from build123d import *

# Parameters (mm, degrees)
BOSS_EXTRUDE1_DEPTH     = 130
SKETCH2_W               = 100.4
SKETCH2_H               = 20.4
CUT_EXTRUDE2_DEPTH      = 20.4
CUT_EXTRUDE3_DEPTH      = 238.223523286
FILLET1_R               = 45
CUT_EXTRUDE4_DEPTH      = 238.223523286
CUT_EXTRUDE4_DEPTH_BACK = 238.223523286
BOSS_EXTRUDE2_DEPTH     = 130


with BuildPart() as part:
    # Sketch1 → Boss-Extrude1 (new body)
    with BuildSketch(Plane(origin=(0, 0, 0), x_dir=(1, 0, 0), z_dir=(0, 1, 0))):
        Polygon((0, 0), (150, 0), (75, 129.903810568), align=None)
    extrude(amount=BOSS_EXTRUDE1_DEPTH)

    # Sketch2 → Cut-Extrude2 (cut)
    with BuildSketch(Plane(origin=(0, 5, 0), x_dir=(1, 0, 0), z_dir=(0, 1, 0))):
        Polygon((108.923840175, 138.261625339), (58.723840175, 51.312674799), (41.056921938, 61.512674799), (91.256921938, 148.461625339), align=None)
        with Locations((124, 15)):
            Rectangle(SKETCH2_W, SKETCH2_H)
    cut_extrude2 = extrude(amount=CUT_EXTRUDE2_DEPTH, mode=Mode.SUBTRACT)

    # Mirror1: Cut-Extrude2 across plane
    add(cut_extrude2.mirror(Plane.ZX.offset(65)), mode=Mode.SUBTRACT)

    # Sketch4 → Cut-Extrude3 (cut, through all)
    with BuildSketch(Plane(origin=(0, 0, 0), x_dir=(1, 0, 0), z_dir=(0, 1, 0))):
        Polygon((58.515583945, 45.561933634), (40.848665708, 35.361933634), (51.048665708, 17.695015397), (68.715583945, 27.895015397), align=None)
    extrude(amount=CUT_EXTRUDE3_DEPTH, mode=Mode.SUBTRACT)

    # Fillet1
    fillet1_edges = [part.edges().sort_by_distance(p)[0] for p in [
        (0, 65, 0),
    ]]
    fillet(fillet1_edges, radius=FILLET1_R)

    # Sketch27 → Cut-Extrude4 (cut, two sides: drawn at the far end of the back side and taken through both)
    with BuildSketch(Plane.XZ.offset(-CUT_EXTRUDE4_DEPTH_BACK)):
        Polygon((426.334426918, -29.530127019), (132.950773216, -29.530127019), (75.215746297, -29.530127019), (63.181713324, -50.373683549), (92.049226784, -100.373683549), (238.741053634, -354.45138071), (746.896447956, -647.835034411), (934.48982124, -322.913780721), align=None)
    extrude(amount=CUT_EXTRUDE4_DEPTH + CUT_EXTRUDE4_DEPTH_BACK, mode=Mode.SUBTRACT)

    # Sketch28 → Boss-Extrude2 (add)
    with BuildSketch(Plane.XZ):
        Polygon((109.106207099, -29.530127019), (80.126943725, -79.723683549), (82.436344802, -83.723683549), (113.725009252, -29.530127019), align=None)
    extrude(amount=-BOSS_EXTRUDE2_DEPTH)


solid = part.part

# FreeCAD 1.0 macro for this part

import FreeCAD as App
import Part
import Sketcher
Q = App.Units.Quantity


def edges_at(feature, points):
    """Names of the edges that pass closest to the given points."""
    edges = feature.Shape.Edges
    near = lambda p: min(range(len(edges)), key=lambda i: edges[i].distToShape(Part.Vertex(*p))[0])
    return sorted({f"Edge{near(p) + 1}" for p in points})


def add_polygon(sketch, points):
    """Adds a closed chain of lines whose ends are joined by coincident constraints."""
    first, n = sketch.GeometryCount, len(points)
    for a, b in zip(points, points[1:] + points[:1]):
        sketch.addGeometry(Part.LineSegment(App.Vector(*a, 0), App.Vector(*b, 0)), False)
    for i in range(n):
        sketch.addConstraint(Sketcher.Constraint("Coincident", first + i, 2, first + (i + 1) % n, 1))

doc = App.newDocument("Part")
body = doc.addObject("PartDesign::Body", "Body")

# Sketch on XZ plane
sketch1 = body.newObject("Sketcher::SketchObject", "Sketch")
sketch1.AttachmentSupport = (doc.getObject("XZ_Plane"), [""])
sketch1.MapMode = "FlatFace"
add_polygon(sketch1, [(0, 0), (150, 0), (75, -130)])  # lines 0-2
sketch1.addConstraint([
    Sketcher.Constraint("Horizontal", 0),
    Sketcher.Constraint("Coincident", 2, 2, -1, 1),
    Sketcher.Constraint("Equal", 1, 2),
    Sketcher.Constraint("DistanceX", 0, 1, 0, 2, 150.0),
    Sketcher.Constraint("Angle", 1, Q("-120 deg")),
])
pad1 = body.newObject("PartDesign::Pad", "Pad")
pad1.Profile = sketch1
pad1.Length = 130
pad1.Reversed = True

# Sketch on XZ plane
sketch2 = body.newObject("Sketcher::SketchObject", "Sketch001")
sketch2.AttachmentSupport = (doc.getObject("XZ_Plane"), [""])
sketch2.MapMode = "FlatFace"
sketch2.AttachmentOffset = App.Placement(App.Vector(0, 0, -5), App.Rotation())
add_polygon(sketch2, [(59, -51), (109, -138), (91, -148), (41, -62)])  # lines 0-3
add_polygon(sketch2, [(74, -25), (74, -5), (174, -5), (174, -25)])  # lines 4-7
sketch2.addConstraint([
    Sketcher.Constraint("Vertical", 4),
    Sketcher.Constraint("Horizontal", 5),
    Sketcher.Constraint("Vertical", 6),
    Sketcher.Constraint("Horizontal", 7),
    Sketcher.Constraint("Perpendicular", 0, 1),
    Sketcher.Constraint("Perpendicular", 1, 2),
    Sketcher.Constraint("Perpendicular", 2, 3),
    Sketcher.Constraint("Angle", 0, Q("-60 deg")),
    Sketcher.Constraint("DistanceX", 5, 1, 5, 2, 100.4),
    Sketcher.Constraint("DistanceY", 4, 1, 4, 2, 20.4),
    Sketcher.Constraint("Distance", 0, 100.4),
    Sketcher.Constraint("Distance", 1, 20.4),
    Sketcher.Constraint("DistanceX", -1, 1, 4, 2, 73.8),
    Sketcher.Constraint("DistanceY", 4, 2, -1, 1, 4.8),
    Sketcher.Constraint("DistanceX", -1, 1, 0, 2, 108.92384),
    Sketcher.Constraint("DistanceY", 0, 2, -1, 1, 138.261625),
])
pocket1 = body.newObject("PartDesign::Pocket", "Pocket")
pocket1.Profile = sketch2
pocket1.Length = 20.4
doc.recompute()

datumplane = body.newObject("PartDesign::Plane", "DatumPlane")
datumplane.AttachmentSupport = (doc.getObject("XZ_Plane"), [""])
datumplane.MapMode = "FlatFace"
datumplane.AttachmentOffset = App.Placement(App.Vector(0, 0, -65), App.Rotation())
mirrored = body.newObject("PartDesign::Mirrored", "Mirrored")
mirrored.Originals = [pocket1]
mirrored.MirrorPlane = (datumplane, [""])
body.Tip = mirrored

# Sketch on XZ plane
sketch3 = body.newObject("Sketcher::SketchObject", "Sketch002")
sketch3.AttachmentSupport = (doc.getObject("XZ_Plane"), [""])
sketch3.MapMode = "FlatFace"
add_polygon(sketch3, [(59, -46), (41, -35), (51, -18), (69, -28)])  # lines 0-3
sketch3.addConstraint([
    Sketcher.Constraint("Perpendicular", 0, 1),
    Sketcher.Constraint("Perpendicular", 1, 2),
    Sketcher.Constraint("Perpendicular", 2, 3),
    Sketcher.Constraint("Equal", 0, 1),
    Sketcher.Constraint("Angle", 0, Q("150 deg")),
    Sketcher.Constraint("Distance", 0, 20.4),
    Sketcher.Constraint("DistanceX", -1, 1, 0, 2, 40.848666),
    Sketcher.Constraint("DistanceY", 0, 2, -1, 1, 35.361934),
])
pocket2 = body.newObject("PartDesign::Pocket", "Pocket001")
pocket2.Profile = sketch3
pocket2.Type = "ThroughAll"
doc.recompute()

fillet = body.newObject("PartDesign::Fillet", "Fillet")
fillet.Base = (pocket2, edges_at(pocket2, [(0, 65, 0)]))
fillet.Radius = 45

# Sketch on XZ plane
sketch4 = body.newObject("Sketcher::SketchObject", "Sketch003")
sketch4.AttachmentSupport = (doc.getObject("XZ_Plane"), [""])
sketch4.MapMode = "FlatFace"
add_polygon(sketch4, [(426, -30), (75, -30), (63, -50), (92, -100), (239, -354), (747, -648), (934, -323)])  # lines 0-6
sketch4.addConstraint([
    Sketcher.Constraint("Horizontal", 0),
    Sketcher.Constraint("Parallel", 2, 3),
    Sketcher.Constraint("Perpendicular", 1, 4),
    Sketcher.Constraint("Perpendicular", 4, 5),
    Sketcher.Constraint("Perpendicular", 5, 6),
    Sketcher.Constraint("Equal", 4, 6),
    Sketcher.Constraint("Angle", 1, Q("-120 deg")),
    Sketcher.Constraint("Angle", 2, Q("-60 deg")),
    Sketcher.Constraint("DistanceY", 2, 2, 1, 2, 50.0),
    Sketcher.Constraint("DistanceX", 0, 2, 0, 1, 351.118681),
    Sketcher.Constraint("DistanceX", 0, 2, 4, 2, 671.680702),
    Sketcher.Constraint("DistanceY", 3, 2, 5, 2, 31.5376),
    Sketcher.Constraint("DistanceY", 3, 2, -1, 1, 354.451381),
    Sketcher.Constraint("DistanceX", -1, 1, 5, 2, 934.489821),
])
pocket3 = body.newObject("PartDesign::Pocket", "Pocket002")
pocket3.Profile = sketch4
pocket3.Type = "ThroughAll"
pocket3.Midplane = True

# Sketch on XZ plane
sketch5 = body.newObject("Sketcher::SketchObject", "Sketch004")
sketch5.AttachmentSupport = (doc.getObject("XZ_Plane"), [""])
sketch5.MapMode = "FlatFace"
add_polygon(sketch5, [(109.1, -29.5), (80.1, -79.7), (82.4, -83.7), (113.7, -29.5)])  # lines 0-3
sketch5.addConstraint([
    Sketcher.Constraint("Horizontal", 3),
    Sketcher.Constraint("Parallel", 0, 2),
    Sketcher.Constraint("Angle", 0, Q("-120 deg")),
    Sketcher.Constraint("Angle", 1, Q("-60 deg")),
    Sketcher.Constraint("DistanceY", 1, 2, 0, 2, 4.0),
    Sketcher.Constraint("Distance", 2, 62.577329),
    Sketcher.Constraint("DistanceX", -1, 1, 2, 2, 113.725009),
    Sketcher.Constraint("DistanceY", 0, 2, -1, 1, 79.723684),
])
pad2 = body.newObject("PartDesign::Pad", "Pad001")
pad2.Profile = sketch5
pad2.Length = 130
pad2.Reversed = True

doc.recompute()
